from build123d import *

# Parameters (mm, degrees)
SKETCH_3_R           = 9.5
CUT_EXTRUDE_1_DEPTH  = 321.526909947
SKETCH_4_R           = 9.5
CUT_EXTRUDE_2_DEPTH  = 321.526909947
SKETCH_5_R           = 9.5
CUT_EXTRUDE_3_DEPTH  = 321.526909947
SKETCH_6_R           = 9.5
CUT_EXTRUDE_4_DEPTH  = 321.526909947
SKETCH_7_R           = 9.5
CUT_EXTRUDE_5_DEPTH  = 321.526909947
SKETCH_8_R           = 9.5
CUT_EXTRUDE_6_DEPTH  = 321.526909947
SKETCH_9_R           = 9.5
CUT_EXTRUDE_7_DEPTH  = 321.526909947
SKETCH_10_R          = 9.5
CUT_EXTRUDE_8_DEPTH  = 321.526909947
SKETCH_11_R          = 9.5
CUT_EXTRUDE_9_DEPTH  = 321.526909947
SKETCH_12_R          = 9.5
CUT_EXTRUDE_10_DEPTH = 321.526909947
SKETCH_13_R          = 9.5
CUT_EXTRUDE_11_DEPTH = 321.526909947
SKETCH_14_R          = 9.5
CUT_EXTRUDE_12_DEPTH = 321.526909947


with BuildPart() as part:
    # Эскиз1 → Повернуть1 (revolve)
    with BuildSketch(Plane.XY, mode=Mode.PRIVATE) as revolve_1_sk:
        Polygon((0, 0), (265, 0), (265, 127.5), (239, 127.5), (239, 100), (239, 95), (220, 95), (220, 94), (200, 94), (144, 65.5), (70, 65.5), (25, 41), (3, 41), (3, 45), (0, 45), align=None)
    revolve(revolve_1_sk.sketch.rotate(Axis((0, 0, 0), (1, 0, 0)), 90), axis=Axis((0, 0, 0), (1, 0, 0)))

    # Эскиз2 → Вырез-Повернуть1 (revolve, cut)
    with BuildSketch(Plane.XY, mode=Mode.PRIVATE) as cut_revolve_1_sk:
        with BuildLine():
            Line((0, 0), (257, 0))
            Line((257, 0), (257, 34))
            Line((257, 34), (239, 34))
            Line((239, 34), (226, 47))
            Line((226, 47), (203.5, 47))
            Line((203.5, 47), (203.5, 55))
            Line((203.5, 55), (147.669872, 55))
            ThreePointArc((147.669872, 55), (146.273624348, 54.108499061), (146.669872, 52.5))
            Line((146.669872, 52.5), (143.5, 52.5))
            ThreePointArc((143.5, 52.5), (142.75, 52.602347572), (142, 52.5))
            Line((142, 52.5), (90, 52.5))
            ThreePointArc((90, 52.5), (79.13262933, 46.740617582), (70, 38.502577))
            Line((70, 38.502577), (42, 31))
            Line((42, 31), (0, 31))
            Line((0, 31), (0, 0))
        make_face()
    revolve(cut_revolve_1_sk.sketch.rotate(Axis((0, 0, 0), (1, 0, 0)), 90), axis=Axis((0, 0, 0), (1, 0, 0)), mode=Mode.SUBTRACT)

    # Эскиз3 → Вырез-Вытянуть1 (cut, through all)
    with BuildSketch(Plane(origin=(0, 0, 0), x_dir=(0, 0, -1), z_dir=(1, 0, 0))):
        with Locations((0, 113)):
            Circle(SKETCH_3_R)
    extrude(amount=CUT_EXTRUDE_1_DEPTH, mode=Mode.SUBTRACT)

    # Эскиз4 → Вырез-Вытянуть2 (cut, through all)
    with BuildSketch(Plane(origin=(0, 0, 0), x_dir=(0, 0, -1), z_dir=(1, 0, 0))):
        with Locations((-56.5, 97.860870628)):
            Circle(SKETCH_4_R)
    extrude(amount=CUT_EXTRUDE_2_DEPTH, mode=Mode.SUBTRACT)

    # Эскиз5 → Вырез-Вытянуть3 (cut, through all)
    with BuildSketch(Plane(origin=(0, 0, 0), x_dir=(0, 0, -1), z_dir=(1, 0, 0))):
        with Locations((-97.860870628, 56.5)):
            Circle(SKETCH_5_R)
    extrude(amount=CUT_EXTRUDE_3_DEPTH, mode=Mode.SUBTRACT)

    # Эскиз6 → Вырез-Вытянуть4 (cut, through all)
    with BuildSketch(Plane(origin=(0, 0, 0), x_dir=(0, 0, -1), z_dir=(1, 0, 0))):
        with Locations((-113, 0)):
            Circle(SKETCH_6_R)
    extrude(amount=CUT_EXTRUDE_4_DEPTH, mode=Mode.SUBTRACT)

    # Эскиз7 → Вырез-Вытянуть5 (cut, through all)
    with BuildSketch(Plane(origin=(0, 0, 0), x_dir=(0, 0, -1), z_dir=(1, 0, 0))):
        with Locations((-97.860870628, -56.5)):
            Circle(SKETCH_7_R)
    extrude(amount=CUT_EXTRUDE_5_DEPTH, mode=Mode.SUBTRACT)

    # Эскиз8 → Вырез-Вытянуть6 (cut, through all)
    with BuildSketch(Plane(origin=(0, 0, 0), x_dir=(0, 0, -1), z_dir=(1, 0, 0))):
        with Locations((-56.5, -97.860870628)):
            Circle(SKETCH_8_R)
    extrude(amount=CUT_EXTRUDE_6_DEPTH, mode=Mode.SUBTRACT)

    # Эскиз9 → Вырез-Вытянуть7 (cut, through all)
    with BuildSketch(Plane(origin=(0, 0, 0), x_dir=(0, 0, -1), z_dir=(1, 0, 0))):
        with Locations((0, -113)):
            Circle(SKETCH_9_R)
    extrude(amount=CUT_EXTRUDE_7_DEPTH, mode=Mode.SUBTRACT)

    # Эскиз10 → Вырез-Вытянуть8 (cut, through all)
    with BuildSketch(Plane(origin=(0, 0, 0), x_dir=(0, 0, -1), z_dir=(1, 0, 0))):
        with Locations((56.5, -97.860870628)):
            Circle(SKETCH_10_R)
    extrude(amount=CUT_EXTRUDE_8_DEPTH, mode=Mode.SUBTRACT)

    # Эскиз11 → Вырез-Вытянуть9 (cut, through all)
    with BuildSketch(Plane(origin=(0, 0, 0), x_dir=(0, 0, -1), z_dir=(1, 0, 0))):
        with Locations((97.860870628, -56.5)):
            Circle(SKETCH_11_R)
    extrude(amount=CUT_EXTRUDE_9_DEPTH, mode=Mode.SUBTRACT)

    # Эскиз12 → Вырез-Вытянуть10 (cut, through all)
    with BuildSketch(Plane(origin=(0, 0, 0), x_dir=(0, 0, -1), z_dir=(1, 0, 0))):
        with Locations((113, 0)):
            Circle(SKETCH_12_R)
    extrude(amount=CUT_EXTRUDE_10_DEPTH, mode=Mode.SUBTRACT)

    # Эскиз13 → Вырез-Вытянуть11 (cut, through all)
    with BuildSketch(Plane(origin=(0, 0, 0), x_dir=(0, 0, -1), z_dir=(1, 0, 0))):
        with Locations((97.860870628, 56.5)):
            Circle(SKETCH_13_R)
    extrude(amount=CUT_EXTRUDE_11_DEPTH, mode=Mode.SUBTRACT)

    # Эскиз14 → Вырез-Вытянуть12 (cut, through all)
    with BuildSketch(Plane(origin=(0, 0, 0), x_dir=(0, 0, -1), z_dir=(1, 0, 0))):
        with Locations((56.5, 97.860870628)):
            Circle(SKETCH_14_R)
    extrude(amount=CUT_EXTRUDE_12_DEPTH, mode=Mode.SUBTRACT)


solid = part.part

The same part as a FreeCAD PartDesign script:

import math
import FreeCAD as App
import Part
import Sketcher
from FreeCAD import Vector
Q = App.Units.Quantity


def add_polygon(sketch, points):
    """Adds a closed chain of lines whose ends are joined by coincident constraints."""
    first, n = sketch.GeometryCount, len(points)
    for a, b in zip(points, points[1:] + points[:1]):
        sketch.addGeometry(Part.LineSegment(App.Vector(*a, 0), App.Vector(*b, 0)), False)
    for i in range(n):
        sketch.addConstraint(Sketcher.Constraint("Coincident", first + i, 2, first + (i + 1) % n, 1))

doc = App.newDocument("Part")
body = doc.addObject("PartDesign::Body", "Body")

sketch1 = body.newObject("Sketcher::SketchObject", "Sketch")
sketch1.AttachmentSupport = (doc.getObject("XY_Plane"), [""])
sketch1.MapMode = "FlatFace"
add_polygon(sketch1, [(0, 0), (265, 0), (265, 127.5), (239, 127.5), (239, 95), (220, 95), (220, 94), (200, 94), (144, 65.5), (70, 65.5), (25, 41), (3, 41), (3, 45), (0, 45)])
sketch1.addConstraint(Sketcher.Constraint("Horizontal", 0))
sketch1.addConstraint(Sketcher.Constraint("Vertical", 1))
sketch1.addConstraint(Sketcher.Constraint("Horizontal", 2))
sketch1.addConstraint(Sketcher.Constraint("Vertical", 3))
sketch1.addConstraint(Sketcher.Constraint("Horizontal", 4))
sketch1.addConstraint(Sketcher.Constraint("Vertical", 5))
sketch1.addConstraint(Sketcher.Constraint("Horizontal", 6))
sketch1.addConstraint(Sketcher.Constraint("Horizontal", 8))
sketch1.addConstraint(Sketcher.Constraint("Horizontal", 10))
sketch1.addConstraint(Sketcher.Constraint("Vertical", 11))
sketch1.addConstraint(Sketcher.Constraint("Horizontal", 12))
sketch1.addConstraint(Sketcher.Constraint("Vertical", 13))
sketch1.addConstraint(Sketcher.Constraint("Coincident", 13, 2, -1, 1))
sketch1.addConstraint(Sketcher.Constraint("DistanceX", 0, 1, 0, 2, Q("265 mm")))
sketch1.addConstraint(Sketcher.Constraint("DistanceX", 2, 2, 2, 1, Q("26 mm")))
sketch1.addConstraint(Sketcher.Constraint("DistanceX", 4, 2, 4, 1, Q("19 mm")))
sketch1.addConstraint(Sketcher.Constraint("DistanceX", 6, 2, 6, 1, Q("20 mm")))
sketch1.addConstraint(Sketcher.Constraint("DistanceX", 8, 2, 8, 1, Q("74 mm")))
sketch1.addConstraint(Sketcher.Constraint("DistanceX", 10, 2, 10, 1, Q("22 mm")))
sketch1.addConstraint(Sketcher.Constraint("DistanceX", 12, 2, 12, 1, Q("3 mm")))
sketch1.addConstraint(Sketcher.Constraint("DistanceY", 5, 2, 5, 1, Q("1 mm")))
sketch1.addConstraint(Sketcher.Constraint("DistanceY", 11, 1, 11, 2, Q("4 mm")))
sketch1.addConstraint(Sketcher.Constraint("DistanceY", 13, 2, 13, 1, Q("45 mm")))
sketch1.addConstraint(Sketcher.Constraint("DistanceY", 1, 1, 1, 2, Q("127.5 mm")))
sketch1.addConstraint(Sketcher.Constraint("DistanceY", 3, 2, 3, 1, Q("32.5 mm")))
sketch1.addConstraint(Sketcher.Constraint("DistanceX", -1, 1, 7, 2, Q("144 mm")))
sketch1.addConstraint(Sketcher.Constraint("DistanceY", 7, 2, 2, 2, Q("62 mm")))
revolution = body.newObject("PartDesign::Revolution", "Revolution")
revolution.Profile = sketch1
revolution.ReferenceAxis = (sketch1, ["H_Axis"])
revolution.Angle = 360

sketch2 = body.newObject("Sketcher::SketchObject", "Sketch001")
sketch2.AttachmentSupport = (doc.getObject("XY_Plane"), [""])
sketch2.MapMode = "FlatFace"
sketch2.addGeometry(Part.LineSegment(Vector(0, 0, 0), Vector(257, 0, 0)), False)
sketch2.addGeometry(Part.LineSegment(Vector(257, 0, 0), Vector(257, 34, 0)), False)
sketch2.addGeometry(Part.LineSegment(Vector(257, 34, 0), Vector(239, 34, 0)), False)
sketch2.addGeometry(Part.LineSegment(Vector(239, 34, 0), Vector(226, 47, 0)), False)
sketch2.addGeometry(Part.LineSegment(Vector(226, 47, 0), Vector(203.5, 47, 0)), False)
sketch2.addGeometry(Part.LineSegment(Vector(203.5, 47, 0), Vector(203.5, 55, 0)), False)
sketch2.addGeometry(Part.LineSegment(Vector(203.5, 55, 0), Vector(147.7, 55, 0)), False)
sketch2.addGeometry(Part.ArcOfCircle(Part.Circle(Vector(147.6, 53.6, 0), Vector(0, 0, 1), 1.4), math.radians(87), math.radians(229)), False)
sketch2.addGeometry(Part.LineSegment(Vector(146.7, 52.5, 0), Vector(143.5, 52.5, 0)), False)
sketch2.addGeometry(Part.ArcOfCircle(Part.Circle(Vector(142.8, 49.8, 0), Vector(0, 0, 1), 2.8), math.radians(74), math.radians(106)), False)
sketch2.addGeometry(Part.LineSegment(Vector(142, 52.5, 0), Vector(90, 52.5, 0)), False)
sketch2.addGeometry(Part.ArcOfCircle(Part.Circle(Vector(107.8, 5.8, 0), Vector(0, 0, 1), 50), math.radians(111), math.radians(139)), False)
sketch2.addGeometry(Part.LineSegment(Vector(70, 38.5, 0), Vector(42, 31, 0)), False)
sketch2.addGeometry(Part.LineSegment(Vector(42, 31, 0), Vector(0, 31, 0)), False)
sketch2.addGeometry(Part.LineSegment(Vector(0, 31, 0), Vector(0, 0, 0)), False)
sketch2.addConstraint(Sketcher.Constraint("Coincident", 0, 2, 1, 1))
sketch2.addConstraint(Sketcher.Constraint("Coincident", 1, 2, 2, 1))
sketch2.addConstraint(Sketcher.Constraint("Coincident", 2, 2, 3, 1))
sketch2.addConstraint(Sketcher.Constraint("Coincident", 3, 2, 4, 1))
sketch2.addConstraint(Sketcher.Constraint("Coincident", 4, 2, 5, 1))
sketch2.addConstraint(Sketcher.Constraint("Coincident", 5, 2, 6, 1))
sketch2.addConstraint(Sketcher.Constraint("Coincident", 6, 2, 7, 1))
sketch2.addConstraint(Sketcher.Constraint("Coincident", 7, 2, 8, 1))
sketch2.addConstraint(Sketcher.Constraint("Coincident", 8, 2, 9, 1))
sketch2.addConstraint(Sketcher.Constraint("Coincident", 9, 2, 10, 1))
sketch2.addConstraint(Sketcher.Constraint("Coincident", 10, 2, 11, 1))
sketch2.addConstraint(Sketcher.Constraint("Coincident", 11, 2, 12, 1))
sketch2.addConstraint(Sketcher.Constraint("Coincident", 12, 2, 13, 1))
sketch2.addConstraint(Sketcher.Constraint("Coincident", 13, 2, 14, 1))
sketch2.addConstraint(Sketcher.Constraint("Coincident", 14, 2, 0, 1))
sketch2.addConstraint(Sketcher.Constraint("Horizontal", 0))
sketch2.addConstraint(Sketcher.Constraint("Vertical", 1))
sketch2.addConstraint(Sketcher.Constraint("Horizontal", 2))
sketch2.addConstraint(Sketcher.Constraint("Horizontal", 4))
sketch2.addConstraint(Sketcher.Constraint("Vertical", 5))
sketch2.addConstraint(Sketcher.Constraint("Horizontal", 6))
sketch2.addConstraint(Sketcher.Constraint("Horizontal", 8))
sketch2.addConstraint(Sketcher.Constraint("Horizontal", 10))
sketch2.addConstraint(Sketcher.Constraint("Horizontal", 13))
sketch2.addConstraint(Sketcher.Constraint("Vertical", 14))
sketch2.addConstraint(Sketcher.Constraint("Coincident", 14, 2, -1, 1))
sketch2.addConstraint(Sketcher.Constraint("Horizontal", 8, 2, 9, 2))
sketch2.addConstraint(Sketcher.Constraint("Radius", 11, Q("49.999998 mm")))
sketch2.addConstraint(Sketcher.Constraint("DistanceX", 0, 1, 0, 2, Q("257 mm")))
sketch2.addConstraint(Sketcher.Constraint("DistanceX", 2, 2, 2, 1, Q("18 mm")))
sketch2.addConstraint(Sketcher.Constraint("DistanceX", 10, 2, 10, 1, Q("52 mm")))
sketch2.addConstraint(Sketcher.Constraint("DistanceX", 13, 2, 13, 1, Q("42 mm")))
sketch2.addConstraint(Sketcher.Constraint("DistanceY", 1, 1, 1, 2, Q("34 mm")))
sketch2.addConstraint(Sketcher.Constraint("DistanceY", 5, 1, 5, 2, Q("8 mm")))
sketch2.addConstraint(Sketcher.Constraint("DistanceY", 14, 2, 14, 1, Q("31 mm")))
sketch2.addConstraint(Sketcher.Constraint("Angle", 3, Q("135 deg")))
sketch2.addConstraint(Sketcher.Constraint("Angle", 12, Q("-165.000001 deg")))
sketch2.addConstraint(Sketcher.Constraint("DistanceX", 4, 2, 4, 1, Q("22.5 mm")))
sketch2.addConstraint(Sketcher.Constraint("DistanceX", -1, 1, 3, 2, Q("226 mm")))
sketch2.addConstraint(Sketcher.Constraint("DistanceX", -1, 1, 9, 2, Q("142 mm")))
sketch2.addConstraint(Sketcher.Constraint("DistanceX", -1, 1, 11, 2, Q("70 mm")))
sketch2.addConstraint(Sketcher.Constraint("DistanceX", 7, 2, 6, 2, Q("1 mm")))
sketch2.addConstraint(Sketcher.Constraint("DistanceY", -1, 1, 7, 2, Q("52.5 mm")))
sketch2.addConstraint(Sketcher.Constraint("DistanceX", -1, 1, 8, 2, Q("143.5 mm")))
sketch2.addConstraint(Sketcher.Constraint("Radius", 7, Q("1.421483 mm")))
sketch2.addConstraint(Sketcher.Constraint("Radius", 9, Q("2.799163 mm")))
sketch2.addConstraint(Sketcher.Constraint("DistanceX", 6, 2, 6, 1, Q("55.830128 mm")))
groove = body.newObject("PartDesign::Groove", "Groove")
groove.Profile = sketch2
groove.ReferenceAxis = (sketch2, ["H_Axis"])
groove.Angle = 360

sketch3 = body.newObject("Sketcher::SketchObject", "Sketch002")
sketch3.AttachmentSupport = (doc.getObject("YZ_Plane"), [""])
sketch3.MapMode = "FlatFace"
sketch3.addGeometry(Part.Circle(Vector(113, 0, 0), Vector(0, 0, 1), 10), False)
sketch3.addConstraint(Sketcher.Constraint("PointOnObject", 0, 3, -1))
sketch3.addConstraint(Sketcher.Constraint("Diameter", 0, Q("19 mm")))
sketch3.addConstraint(Sketcher.Constraint("DistanceX", -1, 1, 0, 3, Q("113 mm")))
pocket1 = body.newObject("PartDesign::Pocket", "Pocket")
pocket1.Profile = sketch3
pocket1.Type = "ThroughAll"
pocket1.Reversed = True

sketch4 = body.newObject("Sketcher::SketchObject", "Sketch003")
sketch4.AttachmentSupport = (doc.getObject("YZ_Plane"), [""])
sketch4.MapMode = "FlatFace"
sketch4.addGeometry(Part.Circle(Vector(98, 56, 0), Vector(0, 0, 1), 10), False)
sketch4.addConstraint(Sketcher.Constraint("Diameter", 0, Q("19 mm")))
sketch4.addConstraint(Sketcher.Constraint("DistanceY", -1, 1, 0, 3, Q("56.5 mm")))
sketch4.addConstraint(Sketcher.Constraint("DistanceX", -1, 1, 0, 3, Q("97.860871 mm")))
pocket2 = body.newObject("PartDesign::Pocket", "Pocket001")
pocket2.Profile = sketch4
pocket2.Type = "ThroughAll"
pocket2.Reversed = True

sketch5 = body.newObject("Sketcher::SketchObject", "Sketch004")
sketch5.AttachmentSupport = (doc.getObject("YZ_Plane"), [""])
sketch5.MapMode = "FlatFace"
sketch5.addGeometry(Part.Circle(Vector(56, 98, 0), Vector(0, 0, 1), 10), False)
sketch5.addConstraint(Sketcher.Constraint("Diameter", 0, Q("19 mm")))
sketch5.addConstraint(Sketcher.Constraint("DistanceX", -1, 1, 0, 3, Q("56.5 mm")))
sketch5.addConstraint(Sketcher.Constraint("DistanceY", -1, 1, 0, 3, Q("97.860871 mm")))
pocket3 = body.newObject("PartDesign::Pocket", "Pocket002")
pocket3.Profile = sketch5
pocket3.Type = "ThroughAll"
pocket3.Reversed = True

sketch6 = body.newObject("Sketcher::SketchObject", "Sketch005")
sketch6.AttachmentSupport = (doc.getObject("YZ_Plane"), [""])
sketch6.MapMode = "FlatFace"
sketch6.addGeometry(Part.Circle(Vector(0, 113, 0), Vector(0, 0, 1), 10), False)
sketch6.addConstraint(Sketcher.Constraint("PointOnObject", 0, 3, -2))
sketch6.addConstraint(Sketcher.Constraint("Diameter", 0, Q("19 mm")))
sketch6.addConstraint(Sketcher.Constraint("DistanceY", -1, 1, 0, 3, Q("113 mm")))
pocket4 = body.newObject("PartDesign::Pocket", "Pocket003")
pocket4.Profile = sketch6
pocket4.Type = "ThroughAll"
pocket4.Reversed = True

sketch7 = body.newObject("Sketcher::SketchObject", "Sketch006")
sketch7.AttachmentSupport = (doc.getObject("YZ_Plane"), [""])
sketch7.MapMode = "FlatFace"
sketch7.addGeometry(Part.Circle(Vector(-56, 98, 0), Vector(0, 0, 1), 10), False)
sketch7.addConstraint(Sketcher.Constraint("Diameter", 0, Q("19 mm")))
sketch7.addConstraint(Sketcher.Constraint("DistanceX", 0, 3, -1, 1, Q("56.5 mm")))
sketch7.addConstraint(Sketcher.Constraint("DistanceY", -1, 1, 0, 3, Q("97.860871 mm")))
pocket5 = body.newObject("PartDesign::Pocket", "Pocket004")
pocket5.Profile = sketch7
pocket5.Type = "ThroughAll"
pocket5.Reversed = True

sketch8 = body.newObject("Sketcher::SketchObject", "Sketch007")
sketch8.AttachmentSupport = (doc.getObject("YZ_Plane"), [""])
sketch8.MapMode = "FlatFace"
sketch8.addGeometry(Part.Circle(Vector(-98, 56, 0), Vector(0, 0, 1), 10), False)
sketch8.addConstraint(Sketcher.Constraint("Diameter", 0, Q("19 mm")))
sketch8.addConstraint(Sketcher.Constraint("DistanceY", -1, 1, 0, 3, Q("56.5 mm")))
sketch8.addConstraint(Sketcher.Constraint("DistanceX", 0, 3, -1, 1, Q("97.860871 mm")))
pocket6 = body.newObject("PartDesign::Pocket", "Pocket005")
pocket6.Profile = sketch8
pocket6.Type = "ThroughAll"
pocket6.Reversed = True

sketch9 = body.newObject("Sketcher::SketchObject", "Sketch008")
sketch9.AttachmentSupport = (doc.getObject("YZ_Plane"), [""])
sketch9.MapMode = "FlatFace"
sketch9.addGeometry(Part.Circle(Vector(-113, 0, 0), Vector(0, 0, 1), 10), False)
sketch9.addConstraint(Sketcher.Constraint("PointOnObject", 0, 3, -1))
sketch9.addConstraint(Sketcher.Constraint("Diameter", 0, Q("19 mm")))
sketch9.addConstraint(Sketcher.Constraint("DistanceX", 0, 3, -1, 1, Q("113 mm")))
pocket7 = body.newObject("PartDesign::Pocket", "Pocket006")
pocket7.Profile = sketch9
pocket7.Type = "ThroughAll"
pocket7.Reversed = True

sketch10 = body.newObject("Sketcher::SketchObject", "Sketch009")
sketch10.AttachmentSupport = (doc.getObject("YZ_Plane"), [""])
sketch10.MapMode = "FlatFace"
sketch10.addGeometry(Part.Circle(Vector(-98, -56, 0), Vector(0, 0, 1), 10), False)
sketch10.addConstraint(Sketcher.Constraint("Diameter", 0, Q("19 mm")))
sketch10.addConstraint(Sketcher.Constraint("DistanceY", 0, 3, -1, 1, Q("56.5 mm")))
sketch10.addConstraint(Sketcher.Constraint("DistanceX", 0, 3, -1, 1, Q("97.860871 mm")))
pocket8 = body.newObject("PartDesign::Pocket", "Pocket007")
pocket8.Profile = sketch10
pocket8.Type = "ThroughAll"
pocket8.Reversed = True

sketch11 = body.newObject("Sketcher::SketchObject", "Sketch010")
sketch11.AttachmentSupport = (doc.getObject("YZ_Plane"), [""])
sketch11.MapMode = "FlatFace"
sketch11.addGeometry(Part.Circle(Vector(-56, -98, 0), Vector(0, 0, 1), 10), False)
sketch11.addConstraint(Sketcher.Constraint("Diameter", 0, Q("19 mm")))
sketch11.addConstraint(Sketcher.Constraint("DistanceX", 0, 3, -1, 1, Q("56.5 mm")))
sketch11.addConstraint(Sketcher.Constraint("DistanceY", 0, 3, -1, 1, Q("97.860871 mm")))
pocket9 = body.newObject("PartDesign::Pocket", "Pocket008")
pocket9.Profile = sketch11
pocket9.Type = "ThroughAll"
pocket9.Reversed = True

sketch12 = body.newObject("Sketcher::SketchObject", "Sketch011")
sketch12.AttachmentSupport = (doc.getObject("YZ_Plane"), [""])
sketch12.MapMode = "FlatFace"
sketch12.addGeometry(Part.Circle(Vector(0, -113, 0), Vector(0, 0, 1), 10), False)
sketch12.addConstraint(Sketcher.Constraint("PointOnObject", 0, 3, -2))
sketch12.addConstraint(Sketcher.Constraint("Diameter", 0, Q("19 mm")))
sketch12.addConstraint(Sketcher.Constraint("DistanceY", 0, 3, -1, 1, Q("113 mm")))
pocket10 = body.newObject("PartDesign::Pocket", "Pocket009")
pocket10.Profile = sketch12
pocket10.Type = "ThroughAll"
pocket10.Reversed = True

sketch13 = body.newObject("Sketcher::SketchObject", "Sketch012")
sketch13.AttachmentSupport = (doc.getObject("YZ_Plane"), [""])
sketch13.MapMode = "FlatFace"
sketch13.addGeometry(Part.Circle(Vector(56, -98, 0), Vector(0, 0, 1), 10), False)
sketch13.addConstraint(Sketcher.Constraint("Diameter", 0, Q("19 mm")))
sketch13.addConstraint(Sketcher.Constraint("DistanceX", -1, 1, 0, 3, Q("56.5 mm")))
sketch13.addConstraint(Sketcher.Constraint("DistanceY", 0, 3, -1, 1, Q("97.860871 mm")))
pocket11 = body.newObject("PartDesign::Pocket", "Pocket010")
pocket11.Profile = sketch13
pocket11.Type = "ThroughAll"
pocket11.Reversed = True

sketch14 = body.newObject("Sketcher::SketchObject", "Sketch013")
sketch14.AttachmentSupport = (doc.getObject("YZ_Plane"), [""])
sketch14.MapMode = "FlatFace"
sketch14.addGeometry(Part.Circle(Vector(98, -56, 0), Vector(0, 0, 1), 10), False)
sketch14.addConstraint(Sketcher.Constraint("Diameter", 0, Q("19 mm")))
sketch14.addConstraint(Sketcher.Constraint("DistanceY", 0, 3, -1, 1, Q("56.5 mm")))
sketch14.addConstraint(Sketcher.Constraint("DistanceX", -1, 1, 0, 3, Q("97.860871 mm")))
pocket12 = body.newObject("PartDesign::Pocket", "Pocket011")
pocket12.Profile = sketch14
pocket12.Type = "ThroughAll"
pocket12.Reversed = True

doc.recompute()
